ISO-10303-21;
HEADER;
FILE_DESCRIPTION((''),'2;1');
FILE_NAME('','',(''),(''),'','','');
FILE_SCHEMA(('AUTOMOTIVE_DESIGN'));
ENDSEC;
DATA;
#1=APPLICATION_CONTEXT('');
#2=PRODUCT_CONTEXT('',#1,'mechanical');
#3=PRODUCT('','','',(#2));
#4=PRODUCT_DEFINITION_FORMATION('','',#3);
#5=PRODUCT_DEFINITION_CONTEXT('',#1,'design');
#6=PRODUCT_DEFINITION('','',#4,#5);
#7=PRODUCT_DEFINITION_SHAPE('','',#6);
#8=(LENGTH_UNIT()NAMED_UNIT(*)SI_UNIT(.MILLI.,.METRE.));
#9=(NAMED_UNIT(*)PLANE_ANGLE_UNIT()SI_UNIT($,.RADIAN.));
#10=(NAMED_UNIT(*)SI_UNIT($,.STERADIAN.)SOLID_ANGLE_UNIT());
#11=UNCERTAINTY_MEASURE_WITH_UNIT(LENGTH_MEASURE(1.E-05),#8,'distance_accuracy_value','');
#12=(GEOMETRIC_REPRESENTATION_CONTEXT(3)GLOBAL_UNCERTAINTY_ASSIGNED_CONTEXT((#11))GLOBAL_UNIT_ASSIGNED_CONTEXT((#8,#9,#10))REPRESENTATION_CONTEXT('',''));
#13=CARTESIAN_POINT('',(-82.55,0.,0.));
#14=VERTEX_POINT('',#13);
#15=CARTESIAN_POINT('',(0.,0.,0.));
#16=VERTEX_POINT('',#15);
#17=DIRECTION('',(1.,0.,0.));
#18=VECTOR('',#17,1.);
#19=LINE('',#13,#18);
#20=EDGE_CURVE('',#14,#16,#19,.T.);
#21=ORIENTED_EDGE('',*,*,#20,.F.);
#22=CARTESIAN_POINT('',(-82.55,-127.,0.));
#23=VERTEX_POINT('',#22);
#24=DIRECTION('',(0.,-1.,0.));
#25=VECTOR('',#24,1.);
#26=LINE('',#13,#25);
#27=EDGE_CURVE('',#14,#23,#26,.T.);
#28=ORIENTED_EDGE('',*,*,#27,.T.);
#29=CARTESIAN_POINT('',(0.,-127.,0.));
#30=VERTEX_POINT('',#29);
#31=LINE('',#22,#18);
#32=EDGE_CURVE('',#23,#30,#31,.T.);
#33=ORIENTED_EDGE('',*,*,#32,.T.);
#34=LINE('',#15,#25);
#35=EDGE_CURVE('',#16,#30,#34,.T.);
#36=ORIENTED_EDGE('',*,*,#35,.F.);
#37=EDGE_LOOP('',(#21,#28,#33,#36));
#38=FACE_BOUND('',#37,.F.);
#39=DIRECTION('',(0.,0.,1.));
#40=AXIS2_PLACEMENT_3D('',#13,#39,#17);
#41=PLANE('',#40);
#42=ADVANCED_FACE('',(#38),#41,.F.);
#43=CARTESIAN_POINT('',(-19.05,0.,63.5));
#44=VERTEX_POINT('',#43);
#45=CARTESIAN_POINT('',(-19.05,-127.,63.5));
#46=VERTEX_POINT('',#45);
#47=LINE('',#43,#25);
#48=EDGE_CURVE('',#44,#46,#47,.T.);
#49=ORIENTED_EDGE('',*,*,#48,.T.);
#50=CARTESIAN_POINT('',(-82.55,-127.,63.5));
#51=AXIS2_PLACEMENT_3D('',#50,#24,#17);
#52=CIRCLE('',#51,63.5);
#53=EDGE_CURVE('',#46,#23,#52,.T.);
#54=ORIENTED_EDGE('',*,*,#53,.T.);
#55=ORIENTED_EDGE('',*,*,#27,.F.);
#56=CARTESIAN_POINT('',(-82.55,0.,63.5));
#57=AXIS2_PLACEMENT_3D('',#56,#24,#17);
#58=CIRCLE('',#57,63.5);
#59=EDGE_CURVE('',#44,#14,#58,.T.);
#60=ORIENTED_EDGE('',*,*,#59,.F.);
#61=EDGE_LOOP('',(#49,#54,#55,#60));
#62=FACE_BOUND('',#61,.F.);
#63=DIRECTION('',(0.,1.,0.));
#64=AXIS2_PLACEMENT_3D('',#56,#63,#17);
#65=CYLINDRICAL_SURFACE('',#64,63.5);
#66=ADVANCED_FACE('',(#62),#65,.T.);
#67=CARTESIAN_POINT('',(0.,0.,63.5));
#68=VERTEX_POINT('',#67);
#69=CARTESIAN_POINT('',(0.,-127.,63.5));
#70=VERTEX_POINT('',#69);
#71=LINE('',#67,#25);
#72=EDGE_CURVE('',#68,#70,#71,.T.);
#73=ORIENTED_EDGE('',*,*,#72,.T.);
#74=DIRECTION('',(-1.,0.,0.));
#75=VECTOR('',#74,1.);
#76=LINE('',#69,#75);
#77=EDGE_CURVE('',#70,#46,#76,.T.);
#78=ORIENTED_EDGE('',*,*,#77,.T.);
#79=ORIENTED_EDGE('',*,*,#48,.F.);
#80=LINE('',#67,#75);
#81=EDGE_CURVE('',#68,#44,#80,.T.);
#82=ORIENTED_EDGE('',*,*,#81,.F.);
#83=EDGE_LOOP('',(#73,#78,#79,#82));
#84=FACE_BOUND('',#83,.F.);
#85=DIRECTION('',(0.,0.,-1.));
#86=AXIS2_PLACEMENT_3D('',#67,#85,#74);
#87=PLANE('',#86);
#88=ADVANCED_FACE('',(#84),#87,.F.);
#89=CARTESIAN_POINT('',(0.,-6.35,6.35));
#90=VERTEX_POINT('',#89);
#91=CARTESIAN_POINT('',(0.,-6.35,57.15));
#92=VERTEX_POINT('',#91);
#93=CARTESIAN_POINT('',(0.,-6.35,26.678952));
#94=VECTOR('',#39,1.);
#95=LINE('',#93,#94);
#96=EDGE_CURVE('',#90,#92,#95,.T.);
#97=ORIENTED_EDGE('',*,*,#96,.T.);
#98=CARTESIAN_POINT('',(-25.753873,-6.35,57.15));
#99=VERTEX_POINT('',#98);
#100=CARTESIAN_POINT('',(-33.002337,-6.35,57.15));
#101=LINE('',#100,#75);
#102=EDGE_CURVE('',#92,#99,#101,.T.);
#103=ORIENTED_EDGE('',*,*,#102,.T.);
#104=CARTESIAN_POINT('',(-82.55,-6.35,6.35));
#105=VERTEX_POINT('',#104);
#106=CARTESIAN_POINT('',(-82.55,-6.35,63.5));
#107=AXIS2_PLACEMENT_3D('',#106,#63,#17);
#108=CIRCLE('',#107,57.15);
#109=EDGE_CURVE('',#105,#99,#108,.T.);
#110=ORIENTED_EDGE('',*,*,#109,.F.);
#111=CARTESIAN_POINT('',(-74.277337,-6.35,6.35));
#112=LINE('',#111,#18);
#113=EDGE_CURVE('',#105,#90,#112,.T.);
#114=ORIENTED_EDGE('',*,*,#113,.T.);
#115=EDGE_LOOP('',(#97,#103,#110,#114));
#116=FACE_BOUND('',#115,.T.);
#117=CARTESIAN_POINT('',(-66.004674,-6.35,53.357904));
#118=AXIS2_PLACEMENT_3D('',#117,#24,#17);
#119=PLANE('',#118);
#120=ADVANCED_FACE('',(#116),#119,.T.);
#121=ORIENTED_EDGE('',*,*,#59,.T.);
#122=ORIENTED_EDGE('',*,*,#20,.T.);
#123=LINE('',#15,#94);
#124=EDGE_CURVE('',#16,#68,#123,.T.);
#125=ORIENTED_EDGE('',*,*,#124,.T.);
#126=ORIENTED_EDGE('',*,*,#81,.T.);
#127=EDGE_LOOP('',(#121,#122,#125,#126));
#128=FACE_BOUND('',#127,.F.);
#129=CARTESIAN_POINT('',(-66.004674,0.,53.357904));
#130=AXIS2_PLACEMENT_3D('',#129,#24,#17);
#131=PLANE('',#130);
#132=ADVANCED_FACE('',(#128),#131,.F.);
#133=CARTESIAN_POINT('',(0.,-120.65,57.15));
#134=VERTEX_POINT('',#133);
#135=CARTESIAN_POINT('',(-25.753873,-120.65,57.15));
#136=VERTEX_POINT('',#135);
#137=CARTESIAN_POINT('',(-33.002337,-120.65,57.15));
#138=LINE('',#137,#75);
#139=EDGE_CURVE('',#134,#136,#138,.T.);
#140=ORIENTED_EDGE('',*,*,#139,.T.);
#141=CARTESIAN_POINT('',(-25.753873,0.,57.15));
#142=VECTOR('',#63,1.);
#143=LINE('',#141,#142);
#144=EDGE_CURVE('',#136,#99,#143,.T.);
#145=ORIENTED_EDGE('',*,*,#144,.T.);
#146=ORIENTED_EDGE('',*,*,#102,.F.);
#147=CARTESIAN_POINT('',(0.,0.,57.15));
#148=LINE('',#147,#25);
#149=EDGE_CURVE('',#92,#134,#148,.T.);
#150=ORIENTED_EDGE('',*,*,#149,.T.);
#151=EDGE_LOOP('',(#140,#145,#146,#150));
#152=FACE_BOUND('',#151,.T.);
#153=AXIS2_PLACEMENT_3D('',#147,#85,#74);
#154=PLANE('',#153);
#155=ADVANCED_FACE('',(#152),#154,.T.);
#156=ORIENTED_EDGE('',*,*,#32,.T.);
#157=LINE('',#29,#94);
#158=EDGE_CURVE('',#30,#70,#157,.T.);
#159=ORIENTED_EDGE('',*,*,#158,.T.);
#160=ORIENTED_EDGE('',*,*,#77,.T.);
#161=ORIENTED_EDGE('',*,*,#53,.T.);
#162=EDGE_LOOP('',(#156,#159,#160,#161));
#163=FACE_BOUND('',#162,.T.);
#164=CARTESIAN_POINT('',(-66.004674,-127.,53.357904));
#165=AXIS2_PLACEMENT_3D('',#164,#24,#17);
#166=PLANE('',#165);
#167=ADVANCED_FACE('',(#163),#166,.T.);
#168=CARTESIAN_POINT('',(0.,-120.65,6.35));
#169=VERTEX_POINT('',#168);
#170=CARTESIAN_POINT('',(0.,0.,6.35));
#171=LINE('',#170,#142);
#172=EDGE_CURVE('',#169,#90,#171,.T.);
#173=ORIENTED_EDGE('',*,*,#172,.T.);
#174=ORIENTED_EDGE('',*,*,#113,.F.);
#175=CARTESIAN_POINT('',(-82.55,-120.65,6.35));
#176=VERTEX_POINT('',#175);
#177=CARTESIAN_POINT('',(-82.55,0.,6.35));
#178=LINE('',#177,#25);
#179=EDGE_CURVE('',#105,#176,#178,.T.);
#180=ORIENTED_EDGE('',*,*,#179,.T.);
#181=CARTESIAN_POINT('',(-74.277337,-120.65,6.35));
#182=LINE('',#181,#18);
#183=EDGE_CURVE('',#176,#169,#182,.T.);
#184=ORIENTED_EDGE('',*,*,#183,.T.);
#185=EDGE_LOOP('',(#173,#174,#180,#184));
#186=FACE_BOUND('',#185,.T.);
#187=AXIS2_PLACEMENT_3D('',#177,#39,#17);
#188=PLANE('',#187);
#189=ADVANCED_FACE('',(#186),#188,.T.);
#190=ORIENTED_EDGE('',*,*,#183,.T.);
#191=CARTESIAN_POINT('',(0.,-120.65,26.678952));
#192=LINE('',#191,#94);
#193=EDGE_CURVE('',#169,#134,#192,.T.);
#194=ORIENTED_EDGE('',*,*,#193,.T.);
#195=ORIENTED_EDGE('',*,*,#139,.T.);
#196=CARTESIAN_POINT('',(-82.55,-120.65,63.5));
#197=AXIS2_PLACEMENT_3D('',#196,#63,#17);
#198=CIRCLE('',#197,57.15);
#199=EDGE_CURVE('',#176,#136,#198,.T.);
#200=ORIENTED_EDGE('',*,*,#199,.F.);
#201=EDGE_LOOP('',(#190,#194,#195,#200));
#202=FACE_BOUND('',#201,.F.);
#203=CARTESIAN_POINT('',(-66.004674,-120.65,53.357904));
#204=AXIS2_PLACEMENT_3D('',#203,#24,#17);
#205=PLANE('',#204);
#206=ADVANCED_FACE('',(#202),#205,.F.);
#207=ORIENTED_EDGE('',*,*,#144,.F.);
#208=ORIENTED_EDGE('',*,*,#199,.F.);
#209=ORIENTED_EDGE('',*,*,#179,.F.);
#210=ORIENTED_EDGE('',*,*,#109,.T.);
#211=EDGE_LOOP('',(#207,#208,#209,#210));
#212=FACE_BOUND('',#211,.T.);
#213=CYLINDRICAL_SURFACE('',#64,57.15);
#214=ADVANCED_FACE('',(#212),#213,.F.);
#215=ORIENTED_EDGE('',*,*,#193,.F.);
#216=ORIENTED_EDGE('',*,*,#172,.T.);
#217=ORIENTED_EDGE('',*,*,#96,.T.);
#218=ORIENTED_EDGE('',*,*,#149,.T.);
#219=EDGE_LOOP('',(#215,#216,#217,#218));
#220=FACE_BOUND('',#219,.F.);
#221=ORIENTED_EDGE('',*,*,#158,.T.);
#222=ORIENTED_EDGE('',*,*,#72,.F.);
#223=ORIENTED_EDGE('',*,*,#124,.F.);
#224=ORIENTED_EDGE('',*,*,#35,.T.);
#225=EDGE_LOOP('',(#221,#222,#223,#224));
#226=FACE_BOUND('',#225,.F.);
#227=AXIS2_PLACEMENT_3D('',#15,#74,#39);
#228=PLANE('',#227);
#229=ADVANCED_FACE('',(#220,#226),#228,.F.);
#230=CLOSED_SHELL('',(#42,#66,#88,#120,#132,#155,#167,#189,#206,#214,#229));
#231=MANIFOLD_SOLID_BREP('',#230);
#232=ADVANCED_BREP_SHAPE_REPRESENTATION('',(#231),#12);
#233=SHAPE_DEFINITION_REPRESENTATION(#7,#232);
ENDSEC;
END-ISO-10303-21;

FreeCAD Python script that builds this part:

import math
import FreeCAD as App
import Part
import Sketcher
from FreeCAD import Vector
Q = App.Units.Quantity


def faces_at(feature, points):
    """Names of the faces that lie closest to the given points."""
    faces = feature.Shape.Faces
    near = lambda p: min(range(len(faces)), key=lambda i: faces[i].distToShape(Part.Vertex(*p))[0])
    return sorted({f"Face{near(p) + 1}" for p in points})

doc = App.newDocument("Part")
body = doc.addObject("PartDesign::Body", "Body")

sketch1 = body.newObject("Sketcher::SketchObject", "Sketch")
sketch1.AttachmentSupport = (doc.getObject("XZ_Plane"), [""])
sketch1.MapMode = "FlatFace"
sketch1.addGeometry([
    Part.ArcOfCircle(Part.Circle(Vector(-82.55, 63.5, 0), Vector(0, 0, 1), 63.5), math.radians(0), math.radians(270)),
    Part.LineSegment(Vector(-82.55, 0, 0), Vector(0, 0, 0)),
    Part.LineSegment(Vector(0, 0, 0), Vector(0, 63.5, 0)),
    Part.LineSegment(Vector(0, 63.5, 0), Vector(-19.05, 63.5, 0)),
], False)
sketch1.addConstraint([
    Sketcher.Constraint("Tangent", 0, 2, 1, 1),
    Sketcher.Constraint("Coincident", 1, 2, 2, 1),
    Sketcher.Constraint("Coincident", 2, 2, 3, 1),
    Sketcher.Constraint("Coincident", 3, 2, 0, 1),
    Sketcher.Constraint("Horizontal", 1),
    Sketcher.Constraint("Vertical", 2),
    Sketcher.Constraint("Horizontal", 3),
    Sketcher.Constraint("Coincident", 1, 2, -1, 1),
    Sketcher.Constraint("Horizontal", 0, 3, 2, 2),
    Sketcher.Constraint("Radius", 0, Q("2.5 in")),
    Sketcher.Constraint("DistanceX", 1, 1, 1, 2, Q("3.25 in")),
])
pad1 = body.newObject("PartDesign::Pad", "Pad")
pad1.Profile = sketch1
pad1.Length = Q("5 in")
doc.recompute()

thickness = body.newObject("PartDesign::Thickness", "Thickness")
thickness.Base = (pad1, faces_at(pad1, [(0, -63.5, 31.75)]))
thickness.Value = Q("0.25 in")
thickness.Reversed = True
thickness.Join = "Intersection"

doc.recompute()
